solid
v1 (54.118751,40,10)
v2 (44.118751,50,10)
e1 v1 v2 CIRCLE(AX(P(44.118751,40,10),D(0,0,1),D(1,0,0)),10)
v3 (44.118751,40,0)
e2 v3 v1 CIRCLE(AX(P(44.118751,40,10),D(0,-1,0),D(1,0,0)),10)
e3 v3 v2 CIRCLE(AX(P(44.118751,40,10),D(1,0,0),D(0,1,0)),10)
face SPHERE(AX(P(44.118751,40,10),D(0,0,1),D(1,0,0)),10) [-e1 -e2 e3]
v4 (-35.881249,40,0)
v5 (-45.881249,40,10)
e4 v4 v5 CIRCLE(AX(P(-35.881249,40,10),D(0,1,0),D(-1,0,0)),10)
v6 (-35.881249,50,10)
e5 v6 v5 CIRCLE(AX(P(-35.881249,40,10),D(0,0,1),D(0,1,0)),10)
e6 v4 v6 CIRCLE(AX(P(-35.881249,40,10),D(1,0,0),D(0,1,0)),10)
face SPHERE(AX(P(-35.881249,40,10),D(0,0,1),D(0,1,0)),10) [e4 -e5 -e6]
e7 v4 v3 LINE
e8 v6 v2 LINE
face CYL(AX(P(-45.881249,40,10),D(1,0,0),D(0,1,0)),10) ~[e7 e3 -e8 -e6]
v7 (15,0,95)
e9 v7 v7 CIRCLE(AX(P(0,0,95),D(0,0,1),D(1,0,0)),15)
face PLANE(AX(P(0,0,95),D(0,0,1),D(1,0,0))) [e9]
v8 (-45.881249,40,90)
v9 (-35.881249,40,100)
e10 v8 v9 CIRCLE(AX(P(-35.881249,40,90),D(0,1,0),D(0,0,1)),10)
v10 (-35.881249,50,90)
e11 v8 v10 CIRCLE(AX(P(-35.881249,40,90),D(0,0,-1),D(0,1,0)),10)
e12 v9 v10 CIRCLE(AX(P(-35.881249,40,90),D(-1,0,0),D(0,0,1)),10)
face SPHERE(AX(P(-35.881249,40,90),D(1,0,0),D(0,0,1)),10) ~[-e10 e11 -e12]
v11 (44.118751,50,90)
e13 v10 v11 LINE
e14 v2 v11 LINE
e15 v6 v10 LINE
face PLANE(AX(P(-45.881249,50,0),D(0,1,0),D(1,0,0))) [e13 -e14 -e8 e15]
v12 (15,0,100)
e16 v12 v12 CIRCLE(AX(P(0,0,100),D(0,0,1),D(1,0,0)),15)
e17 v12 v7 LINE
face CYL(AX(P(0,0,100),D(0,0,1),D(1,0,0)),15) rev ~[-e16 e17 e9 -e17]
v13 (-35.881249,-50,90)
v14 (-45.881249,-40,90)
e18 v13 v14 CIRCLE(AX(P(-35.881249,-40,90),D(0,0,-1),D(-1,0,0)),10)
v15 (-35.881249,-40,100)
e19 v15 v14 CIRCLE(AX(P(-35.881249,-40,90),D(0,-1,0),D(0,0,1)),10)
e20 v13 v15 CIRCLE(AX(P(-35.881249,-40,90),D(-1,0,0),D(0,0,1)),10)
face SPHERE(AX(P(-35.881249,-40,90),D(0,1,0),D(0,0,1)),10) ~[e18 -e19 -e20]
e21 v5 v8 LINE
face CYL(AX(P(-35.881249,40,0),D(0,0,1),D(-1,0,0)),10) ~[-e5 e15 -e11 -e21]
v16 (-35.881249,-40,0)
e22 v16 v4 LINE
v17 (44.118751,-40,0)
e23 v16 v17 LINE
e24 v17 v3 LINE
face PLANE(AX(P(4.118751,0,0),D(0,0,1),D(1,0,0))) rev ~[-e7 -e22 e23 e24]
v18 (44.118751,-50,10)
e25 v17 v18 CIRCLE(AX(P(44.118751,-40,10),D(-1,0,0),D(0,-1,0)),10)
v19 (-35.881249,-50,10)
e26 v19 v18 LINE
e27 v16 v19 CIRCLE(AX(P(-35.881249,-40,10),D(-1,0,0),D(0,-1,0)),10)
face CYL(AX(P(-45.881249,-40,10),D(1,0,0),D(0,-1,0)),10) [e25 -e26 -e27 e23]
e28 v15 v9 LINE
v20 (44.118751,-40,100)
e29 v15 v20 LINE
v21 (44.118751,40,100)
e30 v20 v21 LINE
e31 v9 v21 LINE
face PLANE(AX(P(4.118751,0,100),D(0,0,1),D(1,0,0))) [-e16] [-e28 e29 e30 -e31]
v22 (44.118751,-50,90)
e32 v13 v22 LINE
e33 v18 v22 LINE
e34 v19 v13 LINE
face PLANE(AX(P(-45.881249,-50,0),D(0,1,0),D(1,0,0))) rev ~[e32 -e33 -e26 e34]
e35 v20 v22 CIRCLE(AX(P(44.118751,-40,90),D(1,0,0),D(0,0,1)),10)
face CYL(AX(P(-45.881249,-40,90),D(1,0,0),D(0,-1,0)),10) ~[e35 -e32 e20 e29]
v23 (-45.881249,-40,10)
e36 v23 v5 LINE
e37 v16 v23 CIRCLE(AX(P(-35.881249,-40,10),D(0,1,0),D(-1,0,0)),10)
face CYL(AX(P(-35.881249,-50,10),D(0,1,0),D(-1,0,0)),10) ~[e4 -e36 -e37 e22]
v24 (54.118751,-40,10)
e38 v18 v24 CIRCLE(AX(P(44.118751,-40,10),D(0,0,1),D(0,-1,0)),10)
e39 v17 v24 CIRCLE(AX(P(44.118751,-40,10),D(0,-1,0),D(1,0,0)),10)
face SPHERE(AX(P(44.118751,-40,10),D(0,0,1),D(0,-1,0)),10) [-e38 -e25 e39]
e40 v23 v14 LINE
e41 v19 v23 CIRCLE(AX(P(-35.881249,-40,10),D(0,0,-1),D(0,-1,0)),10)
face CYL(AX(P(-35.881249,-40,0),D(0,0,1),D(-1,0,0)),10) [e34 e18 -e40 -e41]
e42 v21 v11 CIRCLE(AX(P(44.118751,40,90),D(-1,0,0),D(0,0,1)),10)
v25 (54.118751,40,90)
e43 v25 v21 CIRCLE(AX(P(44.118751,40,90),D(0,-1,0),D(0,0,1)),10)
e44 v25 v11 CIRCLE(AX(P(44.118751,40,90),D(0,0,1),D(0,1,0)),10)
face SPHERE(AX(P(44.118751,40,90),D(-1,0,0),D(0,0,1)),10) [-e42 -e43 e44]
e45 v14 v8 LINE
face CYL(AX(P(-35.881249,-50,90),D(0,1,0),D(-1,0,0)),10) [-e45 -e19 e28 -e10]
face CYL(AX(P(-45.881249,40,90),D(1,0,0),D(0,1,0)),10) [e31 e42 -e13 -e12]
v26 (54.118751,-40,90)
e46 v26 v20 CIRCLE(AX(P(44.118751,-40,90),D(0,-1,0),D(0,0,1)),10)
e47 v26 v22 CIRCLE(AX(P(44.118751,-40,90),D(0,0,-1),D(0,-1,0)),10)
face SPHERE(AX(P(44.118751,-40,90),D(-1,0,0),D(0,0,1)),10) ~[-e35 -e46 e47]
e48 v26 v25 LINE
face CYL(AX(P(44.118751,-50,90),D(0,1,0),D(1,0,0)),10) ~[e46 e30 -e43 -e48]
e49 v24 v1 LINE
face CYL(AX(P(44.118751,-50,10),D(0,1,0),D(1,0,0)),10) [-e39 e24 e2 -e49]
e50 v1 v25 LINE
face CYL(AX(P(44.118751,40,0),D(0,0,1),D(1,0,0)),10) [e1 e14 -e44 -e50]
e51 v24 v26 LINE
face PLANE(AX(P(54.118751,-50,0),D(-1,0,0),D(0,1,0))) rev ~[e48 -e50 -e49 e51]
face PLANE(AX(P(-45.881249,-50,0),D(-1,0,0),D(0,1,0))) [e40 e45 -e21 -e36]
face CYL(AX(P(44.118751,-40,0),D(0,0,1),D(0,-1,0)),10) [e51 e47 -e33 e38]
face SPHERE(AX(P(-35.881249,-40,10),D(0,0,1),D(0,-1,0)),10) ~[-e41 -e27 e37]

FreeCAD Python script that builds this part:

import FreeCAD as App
import Part
import Sketcher

V = App.Vector


def add_polygon(sketch, points):
    """Adds a closed chain of lines whose ends are joined by coincident constraints."""
    first, n = sketch.GeometryCount, len(points)
    for a, b in zip(points, points[1:] + points[:1]):
        sketch.addGeometry(Part.LineSegment(App.Vector(*a, 0), App.Vector(*b, 0)), False)
    for i in range(n):
        sketch.addConstraint(Sketcher.Constraint("Coincident", first + i, 2, first + (i + 1) % n, 1))

doc = App.newDocument("Part")
body = doc.addObject("PartDesign::Body", "Body")

# Sketch on XY plane
sketch1 = body.newObject("Sketcher::SketchObject", "Sketch")
sketch1.AttachmentSupport = (doc.getObject("XY_Plane"), [""])
sketch1.MapMode = "FlatFace"
add_polygon(sketch1, [(-46, 50), (-46, -50), (54, -50), (54, 50)])  # lines 0-3
sketch1.addConstraint([
    Sketcher.Constraint("Vertical", 0),
    Sketcher.Constraint("Horizontal", 1),
    Sketcher.Constraint("Vertical", 2),
    Sketcher.Constraint("Horizontal", 3),
    Sketcher.Constraint("Equal", 3, 0),
    Sketcher.Constraint("DistanceX", 1, 1, 1, 2, 100.0),
    Sketcher.Constraint("DistanceY", 0, 2, -1, 1, 50.0),
    Sketcher.Constraint("DistanceX", 0, 2, -1, 1, 45.881249),
])
pad1 = body.newObject("PartDesign::Pad", "Pad")
pad1.Profile = sketch1
pad1.Length = 100
doc.recompute()

fillet = body.newObject("PartDesign::Fillet", "Fillet")
fillet.Base = (pad1, ["Edge1"])
fillet.UseAllEdges = True
fillet.Radius = 10

# Sketch on XY plane
sketch2 = body.newObject("Sketcher::SketchObject", "Sketch001")
sketch2.AttachmentSupport = (doc.getObject("XY_Plane"), [""])
sketch2.MapMode = "FlatFace"
sketch2.AttachmentOffset = App.Placement(V(0, 0, 100), App.Rotation())
sketch2.addGeometry(Part.Circle(V(0, 0, 0), V(0, 0, 1), 15), False)
sketch2.addConstraint([
    Sketcher.Constraint("Coincident", 0, 3, -1, 1),
    Sketcher.Constraint("Diameter", 0, 30.0),
])
pocket1 = body.newObject("PartDesign::Pocket", "Pocket")
pocket1.Profile = sketch2
pocket1.Length = 5

doc.recompute()
